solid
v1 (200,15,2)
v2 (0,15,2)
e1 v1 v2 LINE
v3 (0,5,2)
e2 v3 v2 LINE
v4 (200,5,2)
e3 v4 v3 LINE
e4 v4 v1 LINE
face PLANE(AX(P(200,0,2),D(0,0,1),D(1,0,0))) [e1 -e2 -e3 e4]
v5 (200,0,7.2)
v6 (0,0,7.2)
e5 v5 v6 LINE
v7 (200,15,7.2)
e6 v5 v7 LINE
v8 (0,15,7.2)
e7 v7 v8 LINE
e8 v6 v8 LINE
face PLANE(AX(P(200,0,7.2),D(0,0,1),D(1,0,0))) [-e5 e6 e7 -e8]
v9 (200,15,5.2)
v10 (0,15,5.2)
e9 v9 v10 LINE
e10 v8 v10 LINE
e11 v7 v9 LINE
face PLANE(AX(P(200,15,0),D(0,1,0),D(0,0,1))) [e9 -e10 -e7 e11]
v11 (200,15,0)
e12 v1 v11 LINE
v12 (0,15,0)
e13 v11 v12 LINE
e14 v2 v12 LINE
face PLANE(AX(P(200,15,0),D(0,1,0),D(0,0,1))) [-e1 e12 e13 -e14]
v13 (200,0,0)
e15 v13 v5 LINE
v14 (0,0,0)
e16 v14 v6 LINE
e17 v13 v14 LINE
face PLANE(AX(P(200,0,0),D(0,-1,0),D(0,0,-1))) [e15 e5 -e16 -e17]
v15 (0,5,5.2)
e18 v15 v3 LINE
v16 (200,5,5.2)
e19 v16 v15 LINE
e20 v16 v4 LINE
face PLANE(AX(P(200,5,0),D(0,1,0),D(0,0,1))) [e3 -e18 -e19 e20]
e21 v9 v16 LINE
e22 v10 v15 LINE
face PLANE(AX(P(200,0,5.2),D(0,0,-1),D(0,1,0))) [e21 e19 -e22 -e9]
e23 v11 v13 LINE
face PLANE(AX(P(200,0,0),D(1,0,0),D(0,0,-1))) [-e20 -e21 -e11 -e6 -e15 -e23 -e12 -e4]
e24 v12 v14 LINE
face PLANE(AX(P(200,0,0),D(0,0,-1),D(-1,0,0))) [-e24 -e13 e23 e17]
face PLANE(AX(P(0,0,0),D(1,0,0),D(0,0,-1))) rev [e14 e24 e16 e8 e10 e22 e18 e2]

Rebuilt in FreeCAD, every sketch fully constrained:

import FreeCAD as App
import Part
import Sketcher

V = App.Vector


def add_polygon(sketch, points):
    """Adds a closed chain of lines whose ends are joined by coincident constraints."""
    first, n = sketch.GeometryCount, len(points)
    for a, b in zip(points, points[1:] + points[:1]):
        sketch.addGeometry(Part.LineSegment(App.Vector(*a, 0), App.Vector(*b, 0)), False)
    for i in range(n):
        sketch.addConstraint(Sketcher.Constraint("Coincident", first + i, 2, first + (i + 1) % n, 1))

doc = App.newDocument("Part")
body = doc.addObject("PartDesign::Body", "Body")

# Sketch on YZ plane
sketch1 = doc.addObject("Sketcher::SketchObject", "Sketch")
body.addObject(sketch1)
sketch1.AttachmentSupport = (doc.YZ_Plane, [""])
sketch1.MapMode = "FlatFace"
add_polygon(sketch1, [(0, 7.2), (0, 0), (15, 0), (15, 2), (5, 2), (5, 5.2), (15, 5.2), (15, 7.2)])  # lines 0-7
sketch1.addConstraint([
    Sketcher.Constraint("Vertical", 0),
    Sketcher.Constraint("Horizontal", 1),
    Sketcher.Constraint("Vertical", 2),
    Sketcher.Constraint("Horizontal", 3),
    Sketcher.Constraint("Vertical", 4),
    Sketcher.Constraint("Horizontal", 5),
    Sketcher.Constraint("Vertical", 6),
    Sketcher.Constraint("Horizontal", 7),
    Sketcher.Constraint("Coincident", 0, 2, -1, 1),
    Sketcher.Constraint("Vertical", 2, 2, 5, 2),
    Sketcher.Constraint("Equal", 2, 6),
    Sketcher.Constraint("DistanceX", 1, 1, 1, 2, 15.0),
    Sketcher.Constraint("DistanceX", 3, 2, 3, 1, 10.0),
    Sketcher.Constraint("DistanceY", 2, 1, 2, 2, 2.0),
    Sketcher.Constraint("DistanceY", 0, 2, 0, 1, 7.2),
])
pad1 = doc.addObject("PartDesign::Pad", "Pad")
body.addObject(pad1)
pad1.Profile = sketch1
pad1.Length = 200

doc.recompute()
